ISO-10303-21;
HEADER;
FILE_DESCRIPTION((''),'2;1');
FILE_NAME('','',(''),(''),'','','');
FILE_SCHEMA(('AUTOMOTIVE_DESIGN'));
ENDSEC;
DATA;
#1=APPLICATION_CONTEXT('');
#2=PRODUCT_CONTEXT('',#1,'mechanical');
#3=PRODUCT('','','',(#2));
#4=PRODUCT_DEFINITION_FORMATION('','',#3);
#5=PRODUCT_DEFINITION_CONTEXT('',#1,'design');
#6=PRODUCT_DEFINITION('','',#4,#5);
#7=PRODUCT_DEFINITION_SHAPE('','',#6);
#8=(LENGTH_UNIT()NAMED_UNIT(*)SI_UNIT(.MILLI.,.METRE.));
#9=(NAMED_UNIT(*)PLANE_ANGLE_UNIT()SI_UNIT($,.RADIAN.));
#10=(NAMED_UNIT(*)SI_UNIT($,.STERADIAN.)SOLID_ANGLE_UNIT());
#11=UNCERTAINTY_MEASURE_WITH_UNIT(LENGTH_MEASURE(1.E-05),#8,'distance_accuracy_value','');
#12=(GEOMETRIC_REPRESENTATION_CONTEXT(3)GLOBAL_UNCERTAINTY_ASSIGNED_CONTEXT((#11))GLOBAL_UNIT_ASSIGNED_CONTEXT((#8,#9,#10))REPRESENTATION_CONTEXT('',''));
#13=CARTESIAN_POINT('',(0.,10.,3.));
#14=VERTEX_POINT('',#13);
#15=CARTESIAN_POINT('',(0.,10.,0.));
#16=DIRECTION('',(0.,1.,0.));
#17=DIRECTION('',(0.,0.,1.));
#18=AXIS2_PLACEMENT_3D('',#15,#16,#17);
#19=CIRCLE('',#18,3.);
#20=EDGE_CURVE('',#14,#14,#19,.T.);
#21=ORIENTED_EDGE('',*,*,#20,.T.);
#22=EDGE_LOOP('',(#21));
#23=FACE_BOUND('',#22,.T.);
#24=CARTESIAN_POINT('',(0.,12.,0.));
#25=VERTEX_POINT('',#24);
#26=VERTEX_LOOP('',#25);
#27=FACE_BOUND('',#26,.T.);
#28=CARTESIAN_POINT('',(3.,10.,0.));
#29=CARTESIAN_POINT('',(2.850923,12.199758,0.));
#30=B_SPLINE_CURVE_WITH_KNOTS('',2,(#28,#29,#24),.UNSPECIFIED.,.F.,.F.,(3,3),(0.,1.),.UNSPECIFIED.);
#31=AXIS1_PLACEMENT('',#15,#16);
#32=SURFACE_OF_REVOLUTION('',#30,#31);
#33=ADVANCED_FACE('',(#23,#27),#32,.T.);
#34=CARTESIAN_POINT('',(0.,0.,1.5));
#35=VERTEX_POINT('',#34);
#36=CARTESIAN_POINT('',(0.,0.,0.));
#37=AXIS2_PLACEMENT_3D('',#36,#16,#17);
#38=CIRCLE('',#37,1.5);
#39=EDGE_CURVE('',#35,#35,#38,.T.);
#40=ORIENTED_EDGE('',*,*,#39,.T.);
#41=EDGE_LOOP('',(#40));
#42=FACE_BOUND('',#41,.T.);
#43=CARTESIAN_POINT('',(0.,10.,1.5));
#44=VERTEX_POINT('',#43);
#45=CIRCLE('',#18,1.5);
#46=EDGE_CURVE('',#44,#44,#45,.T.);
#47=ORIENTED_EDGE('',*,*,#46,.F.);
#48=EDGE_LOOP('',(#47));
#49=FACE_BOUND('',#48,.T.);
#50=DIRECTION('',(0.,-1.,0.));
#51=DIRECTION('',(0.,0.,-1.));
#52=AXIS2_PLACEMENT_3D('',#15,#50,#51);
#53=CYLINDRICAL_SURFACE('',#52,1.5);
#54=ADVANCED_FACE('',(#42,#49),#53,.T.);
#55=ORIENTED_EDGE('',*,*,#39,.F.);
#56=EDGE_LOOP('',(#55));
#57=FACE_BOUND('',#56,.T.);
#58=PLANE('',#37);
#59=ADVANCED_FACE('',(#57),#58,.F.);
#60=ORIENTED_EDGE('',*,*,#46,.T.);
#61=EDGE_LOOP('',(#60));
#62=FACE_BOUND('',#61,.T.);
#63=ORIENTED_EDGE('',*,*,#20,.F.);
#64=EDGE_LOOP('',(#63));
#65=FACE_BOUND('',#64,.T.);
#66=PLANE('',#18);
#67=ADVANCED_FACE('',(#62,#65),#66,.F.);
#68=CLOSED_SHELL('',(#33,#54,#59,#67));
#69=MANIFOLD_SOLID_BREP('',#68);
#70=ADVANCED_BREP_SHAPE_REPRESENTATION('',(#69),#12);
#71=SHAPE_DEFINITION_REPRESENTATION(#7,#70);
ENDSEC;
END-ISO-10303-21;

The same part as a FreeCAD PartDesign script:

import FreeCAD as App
import Part
import Sketcher
Q = App.Units.Quantity

doc = App.newDocument("Part")
body = doc.addObject("PartDesign::Body", "Body")

# Sketch on XZ plane
sketch1 = body.newObject("Sketcher::SketchObject", "Sketch")
sketch1.AttachmentSupport = (doc.getObject("XZ_Plane"), [""])
sketch1.MapMode = "FlatFace"
sketch1.addGeometry(Part.Circle(App.Vector(0, 0, 0), App.Vector(0, 0, 1), 1.5), False)
sketch1.addConstraint(Sketcher.Constraint("Coincident", 0, 3, -1, 1))
sketch1.addConstraint(Sketcher.Constraint("Diameter", 0, Q("3 mm")))
pad1 = body.newObject("PartDesign::Pad", "Pad")
pad1.Profile = sketch1
pad1.Length = 10
pad1.Reversed = True

# Sketch on XY plane
sketch2 = body.newObject("Sketcher::SketchObject", "Sketch001")
sketch2.AttachmentSupport = (doc.getObject("XY_Plane"), [""])
sketch2.MapMode = "FlatFace"
sketch2.addGeometry(Part.LineSegment(App.Vector(0, 10, 0), App.Vector(3, 10, 0)), False)
sketch2.addGeometry(Part.BSplineCurve([App.Vector(0, 12, 0), App.Vector(2.850923, 12.199758, 0), App.Vector(3, 10, 0)], [3, 3], [0, 1], False, 2, [1, 1, 1], False), False)
sketch2.addGeometry(Part.LineSegment(App.Vector(0, 12, 0), App.Vector(0, 10, 0)), False)
sketch2.addConstraint(Sketcher.Constraint("Block", 1))
sketch2.addConstraint(Sketcher.Constraint("Coincident", 0, 2, 1, 2))
sketch2.addConstraint(Sketcher.Constraint("Coincident", 1, 1, 2, 1))
sketch2.addConstraint(Sketcher.Constraint("Coincident", 2, 2, 0, 1))
sketch2.addConstraint(Sketcher.Constraint("Horizontal", 0))
sketch2.addConstraint(Sketcher.Constraint("Vertical", 2))
revolution = body.newObject("PartDesign::Revolution", "Revolution")
revolution.Profile = sketch2
revolution.ReferenceAxis = (sketch2, ["V_Axis"])
revolution.Angle = 360

doc.recompute()
